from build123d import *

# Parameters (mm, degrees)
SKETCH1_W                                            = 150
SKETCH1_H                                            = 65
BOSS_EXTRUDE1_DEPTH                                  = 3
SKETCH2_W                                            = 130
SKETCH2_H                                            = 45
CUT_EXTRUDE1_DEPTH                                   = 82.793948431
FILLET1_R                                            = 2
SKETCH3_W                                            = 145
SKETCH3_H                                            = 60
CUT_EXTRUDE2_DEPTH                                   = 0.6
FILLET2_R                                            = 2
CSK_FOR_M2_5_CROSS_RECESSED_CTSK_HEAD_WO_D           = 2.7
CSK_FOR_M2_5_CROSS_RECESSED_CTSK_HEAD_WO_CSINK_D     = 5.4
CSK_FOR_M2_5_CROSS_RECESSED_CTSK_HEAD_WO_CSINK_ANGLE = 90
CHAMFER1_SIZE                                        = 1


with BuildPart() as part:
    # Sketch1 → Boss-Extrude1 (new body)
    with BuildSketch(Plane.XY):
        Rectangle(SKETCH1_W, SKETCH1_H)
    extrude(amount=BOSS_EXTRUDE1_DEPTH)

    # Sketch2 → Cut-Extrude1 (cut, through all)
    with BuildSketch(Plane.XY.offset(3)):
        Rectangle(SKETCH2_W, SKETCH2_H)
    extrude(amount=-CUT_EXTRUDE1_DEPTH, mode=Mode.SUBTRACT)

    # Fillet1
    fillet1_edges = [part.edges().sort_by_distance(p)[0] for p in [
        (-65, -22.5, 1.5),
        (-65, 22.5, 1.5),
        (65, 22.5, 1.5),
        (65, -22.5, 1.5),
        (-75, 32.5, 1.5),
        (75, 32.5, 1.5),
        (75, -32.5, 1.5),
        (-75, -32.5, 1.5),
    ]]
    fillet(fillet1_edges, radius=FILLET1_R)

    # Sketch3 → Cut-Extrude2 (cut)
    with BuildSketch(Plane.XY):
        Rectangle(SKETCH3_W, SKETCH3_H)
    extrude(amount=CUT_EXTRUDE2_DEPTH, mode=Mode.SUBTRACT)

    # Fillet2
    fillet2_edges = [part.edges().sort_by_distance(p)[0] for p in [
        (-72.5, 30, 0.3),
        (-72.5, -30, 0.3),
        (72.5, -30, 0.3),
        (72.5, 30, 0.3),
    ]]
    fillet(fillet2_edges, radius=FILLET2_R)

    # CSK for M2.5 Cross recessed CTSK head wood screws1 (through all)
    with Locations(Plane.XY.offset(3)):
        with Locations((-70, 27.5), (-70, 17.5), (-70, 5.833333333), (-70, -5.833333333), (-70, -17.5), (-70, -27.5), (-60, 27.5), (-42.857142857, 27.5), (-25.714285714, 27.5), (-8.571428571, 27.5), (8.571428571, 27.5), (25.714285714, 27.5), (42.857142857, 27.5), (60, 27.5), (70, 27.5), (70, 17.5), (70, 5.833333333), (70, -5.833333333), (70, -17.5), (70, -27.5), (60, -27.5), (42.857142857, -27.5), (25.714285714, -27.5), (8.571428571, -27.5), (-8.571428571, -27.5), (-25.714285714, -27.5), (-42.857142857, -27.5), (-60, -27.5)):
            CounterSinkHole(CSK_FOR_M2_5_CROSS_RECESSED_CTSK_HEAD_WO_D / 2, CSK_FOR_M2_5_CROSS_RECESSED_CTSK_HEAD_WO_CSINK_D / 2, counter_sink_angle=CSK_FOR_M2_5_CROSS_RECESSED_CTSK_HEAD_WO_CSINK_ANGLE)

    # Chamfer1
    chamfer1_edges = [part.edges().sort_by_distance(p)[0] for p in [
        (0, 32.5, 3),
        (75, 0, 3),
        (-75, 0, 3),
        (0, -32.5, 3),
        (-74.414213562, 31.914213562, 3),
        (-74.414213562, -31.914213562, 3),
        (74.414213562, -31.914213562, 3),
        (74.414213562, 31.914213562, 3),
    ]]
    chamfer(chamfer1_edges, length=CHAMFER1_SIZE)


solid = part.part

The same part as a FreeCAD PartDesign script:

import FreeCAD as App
import Part
import Sketcher


def edges_at(feature, points):
    """Names of the edges that pass closest to the given points."""
    edges = feature.Shape.Edges
    near = lambda p: min(range(len(edges)), key=lambda i: edges[i].distToShape(Part.Vertex(*p))[0])
    return sorted({f"Edge{near(p) + 1}" for p in points})

doc = App.newDocument("Part")
body = doc.addObject("PartDesign::Body", "Body")

# Sketch on XY plane
sketch1 = doc.addObject("Sketcher::SketchObject", "Sketch")
body.addObject(sketch1)
sketch1.AttachmentSupport = (doc.XY_Plane, [""])
sketch1.MapMode = "FlatFace"
sketch1.addGeometry([
    Part.LineSegment(App.Vector(-75, 32.5, 0), App.Vector(-75, -32.5, 0)),
    Part.LineSegment(App.Vector(-75, -32.5, 0), App.Vector(75, -32.5, 0)),
    Part.LineSegment(App.Vector(75, -32.5, 0), App.Vector(75, 32.5, 0)),
    Part.LineSegment(App.Vector(75, 32.5, 0), App.Vector(-75, 32.5, 0)),
], False)
sketch1.addConstraint([
    Sketcher.Constraint("Coincident", 0, 2, 1, 1),
    Sketcher.Constraint("Coincident", 1, 2, 2, 1),
    Sketcher.Constraint("Coincident", 2, 2, 3, 1),
    Sketcher.Constraint("Coincident", 3, 2, 0, 1),
    Sketcher.Constraint("Vertical", 0),
    Sketcher.Constraint("Horizontal", 1),
    Sketcher.Constraint("Vertical", 2),
    Sketcher.Constraint("Horizontal", 3),
    Sketcher.Constraint("Symmetric", 0, 2, 2, 2, -1, 1),
    Sketcher.Constraint("DistanceX", 1, 1, 1, 2, 150.0),
    Sketcher.Constraint("DistanceY", 0, 2, 0, 1, 65.0),
])
pad1 = doc.addObject("PartDesign::Pad", "Pad")
body.addObject(pad1)
pad1.Profile = sketch1
pad1.Length = 3

# Sketch on XY plane
sketch2 = doc.addObject("Sketcher::SketchObject", "Sketch001")
body.addObject(sketch2)
sketch2.AttachmentSupport = (doc.XY_Plane, [""])
sketch2.MapMode = "FlatFace"
sketch2.AttachmentOffset = App.Placement(App.Vector(0, 0, 3), App.Rotation())
sketch2.addGeometry([
    Part.LineSegment(App.Vector(-65, 22.5, 0), App.Vector(-65, -22.5, 0)),
    Part.LineSegment(App.Vector(-65, -22.5, 0), App.Vector(65, -22.5, 0)),
    Part.LineSegment(App.Vector(65, -22.5, 0), App.Vector(65, 22.5, 0)),
    Part.LineSegment(App.Vector(65, 22.5, 0), App.Vector(-65, 22.5, 0)),
], False)
sketch2.addConstraint([
    Sketcher.Constraint("Coincident", 0, 2, 1, 1),
    Sketcher.Constraint("Coincident", 1, 2, 2, 1),
    Sketcher.Constraint("Coincident", 2, 2, 3, 1),
    Sketcher.Constraint("Coincident", 3, 2, 0, 1),
    Sketcher.Constraint("Vertical", 0),
    Sketcher.Constraint("Horizontal", 1),
    Sketcher.Constraint("Vertical", 2),
    Sketcher.Constraint("Horizontal", 3),
    Sketcher.Constraint("Symmetric", 0, 2, 2, 2, -1, 1),
    Sketcher.Constraint("DistanceX", 1, 1, 1, 2, 130.0),
    Sketcher.Constraint("DistanceY", 0, 2, 0, 1, 45.0),
])
pocket1 = doc.addObject("PartDesign::Pocket", "Pocket")
body.addObject(pocket1)
pocket1.Profile = sketch2
pocket1.Type = "ThroughAll"
doc.recompute()

fillet = doc.addObject("PartDesign::Fillet", "Fillet")
body.addObject(fillet)
fillet.Base = (pocket1, edges_at(pocket1, [
    (-65, -22.5, 1.5),
    (-65, 22.5, 1.5),
    (65, 22.5, 1.5),
    (65, -22.5, 1.5),
    (-75, 32.5, 1.5),
    (75, 32.5, 1.5),
    (75, -32.5, 1.5),
    (-75, -32.5, 1.5),
]))
fillet.Radius = 2

# Sketch on XY plane
sketch3 = doc.addObject("Sketcher::SketchObject", "Sketch002")
body.addObject(sketch3)
sketch3.AttachmentSupport = (doc.XY_Plane, [""])
sketch3.MapMode = "FlatFace"
sketch3.addGeometry([
    Part.LineSegment(App.Vector(-72.5, 30, 0), App.Vector(-72.5, -30, 0)),
    Part.LineSegment(App.Vector(-72.5, -30, 0), App.Vector(72.5, -30, 0)),
    Part.LineSegment(App.Vector(72.5, -30, 0), App.Vector(72.5, 30, 0)),
    Part.LineSegment(App.Vector(72.5, 30, 0), App.Vector(-72.5, 30, 0)),
], False)
sketch3.addConstraint([
    Sketcher.Constraint("Coincident", 0, 2, 1, 1),
    Sketcher.Constraint("Coincident", 1, 2, 2, 1),
    Sketcher.Constraint("Coincident", 2, 2, 3, 1),
    Sketcher.Constraint("Coincident", 3, 2, 0, 1),
    Sketcher.Constraint("Vertical", 0),
    Sketcher.Constraint("Horizontal", 1),
    Sketcher.Constraint("Vertical", 2),
    Sketcher.Constraint("Horizontal", 3),
    Sketcher.Constraint("Symmetric", 0, 2, 2, 2, -1, 1),
    Sketcher.Constraint("DistanceX", 1, 1, 1, 2, 145.0),
    Sketcher.Constraint("DistanceY", 0, 2, 0, 1, 60.0),
])
pocket2 = doc.addObject("PartDesign::Pocket", "Pocket001")
body.addObject(pocket2)
pocket2.Profile = sketch3
pocket2.Length = 0.6
pocket2.Reversed = True
doc.recompute()

fillet2 = doc.addObject("PartDesign::Fillet", "Fillet001")
body.addObject(fillet2)
fillet2.Base = (pocket2, edges_at(pocket2, [
    (-72.5, 30, 0.3),
    (-72.5, -30, 0.3),
    (72.5, -30, 0.3),
    (72.5, 30, 0.3),
]))
fillet2.Radius = 2

# Sketch on XY plane
sketch4 = doc.addObject("Sketcher::SketchObject", "Sketch003")
body.addObject(sketch4)
sketch4.AttachmentSupport = (doc.XY_Plane, [""])
sketch4.MapMode = "FlatFace"
sketch4.AttachmentOffset = App.Placement(App.Vector(0, 0, 3), App.Rotation())
sketch4.addGeometry([
    Part.Circle(App.Vector(-70, 27.5, 0), App.Vector(0, 0, 1), 1.35),  # 0
    Part.Circle(App.Vector(-70, 17.5, 0), App.Vector(0, 0, 1), 1.35),  # 1
    Part.Circle(App.Vector(-70, 5.833333, 0), App.Vector(0, 0, 1), 1.35),  # 2
    Part.Circle(App.Vector(-70, -5.833333, 0), App.Vector(0, 0, 1), 1.35),  # 3
    Part.Circle(App.Vector(-70, -17.5, 0), App.Vector(0, 0, 1), 1.35),  # 4
    Part.Circle(App.Vector(-70, -27.5, 0), App.Vector(0, 0, 1), 1.35),  # 5
    Part.Circle(App.Vector(-60, 27.5, 0), App.Vector(0, 0, 1), 1.35),  # 6
    Part.Circle(App.Vector(-42.857143, 27.5, 0), App.Vector(0, 0, 1), 1.35),  # 7
    Part.Circle(App.Vector(-25.714286, 27.5, 0), App.Vector(0, 0, 1), 1.35),  # 8
    Part.Circle(App.Vector(-8.571429, 27.5, 0), App.Vector(0, 0, 1), 1.35),  # 9
    Part.Circle(App.Vector(8.571429, 27.5, 0), App.Vector(0, 0, 1), 1.35),  # 10
    Part.Circle(App.Vector(25.714286, 27.5, 0), App.Vector(0, 0, 1), 1.35),  # 11
    Part.Circle(App.Vector(42.857143, 27.5, 0), App.Vector(0, 0, 1), 1.35),  # 12
    Part.Circle(App.Vector(60, 27.5, 0), App.Vector(0, 0, 1), 1.35),  # 13
    Part.Circle(App.Vector(70, 27.5, 0), App.Vector(0, 0, 1), 1.35),  # 14
    Part.Circle(App.Vector(70, 17.5, 0), App.Vector(0, 0, 1), 1.35),  # 15
    Part.Circle(App.Vector(70, 5.833333, 0), App.Vector(0, 0, 1), 1.35),  # 16
    Part.Circle(App.Vector(70, -5.833333, 0), App.Vector(0, 0, 1), 1.35),  # 17
    Part.Circle(App.Vector(70, -17.5, 0), App.Vector(0, 0, 1), 1.35),  # 18
    Part.Circle(App.Vector(70, -27.5, 0), App.Vector(0, 0, 1), 1.35),  # 19
    Part.Circle(App.Vector(60, -27.5, 0), App.Vector(0, 0, 1), 1.35),  # 20
    Part.Circle(App.Vector(42.857143, -27.5, 0), App.Vector(0, 0, 1), 1.35),  # 21
    Part.Circle(App.Vector(25.714286, -27.5, 0), App.Vector(0, 0, 1), 1.35),  # 22
    Part.Circle(App.Vector(8.571429, -27.5, 0), App.Vector(0, 0, 1), 1.35),  # 23
    Part.Circle(App.Vector(-8.571429, -27.5, 0), App.Vector(0, 0, 1), 1.35),  # 24
    Part.Circle(App.Vector(-25.714286, -27.5, 0), App.Vector(0, 0, 1), 1.35),  # 25
    Part.Circle(App.Vector(-42.857143, -27.5, 0), App.Vector(0, 0, 1), 1.35),  # 26
    Part.Circle(App.Vector(-60, -27.5, 0), App.Vector(0, 0, 1), 1.35),  # 27
], False)
sketch4.addConstraint([
    Sketcher.Constraint("Equal", 0, 1),
    Sketcher.Constraint("Equal", 1, 2),
    Sketcher.Constraint("Equal", 2, 3),
    Sketcher.Constraint("Equal", 3, 4),
    Sketcher.Constraint("Equal", 4, 5),
    Sketcher.Constraint("Equal", 5, 6),
    Sketcher.Constraint("Equal", 6, 7),
    Sketcher.Constraint("Equal", 7, 8),
    Sketcher.Constraint("Equal", 8, 9),
    Sketcher.Constraint("Equal", 9, 10),
    Sketcher.Constraint("Equal", 10, 11),
    Sketcher.Constraint("Equal", 11, 12),
    Sketcher.Constraint("Equal", 12, 13),
    Sketcher.Constraint("Equal", 13, 14),
    Sketcher.Constraint("Equal", 14, 15),
    Sketcher.Constraint("Equal", 15, 16),
    Sketcher.Constraint("Equal", 16, 17),
    Sketcher.Constraint("Equal", 17, 18),
    Sketcher.Constraint("Equal", 18, 19),
    Sketcher.Constraint("Equal", 19, 20),
    Sketcher.Constraint("Equal", 20, 21),
    Sketcher.Constraint("Equal", 21, 22),
    Sketcher.Constraint("Equal", 22, 23),
    Sketcher.Constraint("Equal", 23, 24),
    Sketcher.Constraint("Equal", 24, 25),
    Sketcher.Constraint("Equal", 25, 26),
    Sketcher.Constraint("Equal", 26, 27),
    Sketcher.Constraint("Symmetric", 5, 3, 14, 3, -1, 1),
    Sketcher.Constraint("Symmetric", 4, 3, 15, 3, -1, 1),
    Sketcher.Constraint("Symmetric", 3, 3, 16, 3, -1, 1),
    Sketcher.Constraint("Symmetric", 2, 3, 17, 3, -1, 1),
    Sketcher.Constraint("Symmetric", 1, 3, 18, 3, -1, 1),
    Sketcher.Constraint("Symmetric", 0, 3, 19, 3, -1, 1),
    Sketcher.Constraint("Symmetric", 6, 3, 20, 3, -1, 1),
    Sketcher.Constraint("Symmetric", 7, 3, 21, 3, -1, 1),
    Sketcher.Constraint("Symmetric", 8, 3, 22, 3, -1, 1),
    Sketcher.Constraint("Symmetric", 9, 3, 23, 3, -1, 1),
    Sketcher.Constraint("Symmetric", 10, 3, 24, 3, -1, 1),
    Sketcher.Constraint("Symmetric", 11, 3, 25, 3, -1, 1),
    Sketcher.Constraint("Symmetric", 12, 3, 26, 3, -1, 1),
    Sketcher.Constraint("Symmetric", 13, 3, 27, 3, -1, 1),
    Sketcher.Constraint("Symmetric", 9, 3, 10, 3, -2),
    Sketcher.Constraint("Symmetric", 8, 3, 11, 3, -2),
    Sketcher.Constraint("Symmetric", 7, 3, 12, 3, -2),
    Sketcher.Constraint("Symmetric", 6, 3, 13, 3, -2),
    Sketcher.Constraint("Symmetric", 0, 3, 14, 3, -2),
    Sketcher.Constraint("Symmetric", 1, 3, 15, 3, -2),
    Sketcher.Constraint("Symmetric", 2, 3, 16, 3, -2),
    Sketcher.Constraint("Horizontal", 0, 3, 6, 3),
    Sketcher.Constraint("Horizontal", 6, 3, 7, 3),
    Sketcher.Constraint("Horizontal", 7, 3, 8, 3),
    Sketcher.Constraint("Horizontal", 8, 3, 9, 3),
    Sketcher.Constraint("Vertical", 0, 3, 1, 3),
    Sketcher.Constraint("Vertical", 1, 3, 2, 3),
    Sketcher.Constraint("Diameter", 0, 2.7),
    Sketcher.Constraint("DistanceX", 0, 3, -1, 1, 70.0),
    Sketcher.Constraint("DistanceX", 6, 3, -1, 1, 60.0),
    Sketcher.Constraint("DistanceY", 1, 3, 0, 3, 10.0),
    Sketcher.Constraint("DistanceY", 4, 3, 1, 3, 35.0),
    Sketcher.Constraint("DistanceX", 9, 3, -1, 1, 8.571429),
    Sketcher.Constraint("DistanceX", 7, 3, 10, 3, 51.428571),
    Sketcher.Constraint("DistanceX", 8, 3, 11, 3, 51.428571),
    Sketcher.Constraint("DistanceY", -1, 1, 2, 3, 5.833333),
])
doc.recompute()
hole = doc.addObject("PartDesign::Hole", "Hole")
body.addObject(hole)
hole.Profile = sketch4
hole.ThreadType = "None"
hole.Diameter = 2.7
hole.DepthType = "ThroughAll"
hole.HoleCutType = "Countersink"
hole.HoleCutDiameter = 5.4
hole.HoleCutCountersinkAngle = 90
doc.recompute()

chamfer = doc.addObject("PartDesign::Chamfer", "Chamfer")
body.addObject(chamfer)
chamfer.Base = (hole, edges_at(hole, [
    (0, 32.5, 3),
    (75, 0, 3),
    (-75, 0, 3),
    (0, -32.5, 3),
    (-74.414, 31.914, 3),
    (-74.414, -31.914, 3),
    (74.414, -31.914, 3),
    (74.414, 31.914, 3),
]))
chamfer.Size = 1

doc.recompute()
